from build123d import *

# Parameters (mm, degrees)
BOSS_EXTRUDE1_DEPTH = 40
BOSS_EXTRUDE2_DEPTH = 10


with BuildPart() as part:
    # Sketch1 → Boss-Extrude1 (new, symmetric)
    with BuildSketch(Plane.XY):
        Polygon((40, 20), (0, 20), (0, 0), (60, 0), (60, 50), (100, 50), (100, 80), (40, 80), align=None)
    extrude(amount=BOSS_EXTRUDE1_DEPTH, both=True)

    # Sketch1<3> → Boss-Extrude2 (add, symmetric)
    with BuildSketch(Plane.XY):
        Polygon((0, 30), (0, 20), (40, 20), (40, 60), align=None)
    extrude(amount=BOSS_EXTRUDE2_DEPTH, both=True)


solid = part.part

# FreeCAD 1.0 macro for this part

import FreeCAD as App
import Part
import Sketcher
from FreeCAD import Vector


def add_polygon(sketch, points):
    """Adds a closed chain of lines whose ends are joined by coincident constraints."""
    first, n = sketch.GeometryCount, len(points)
    for a, b in zip(points, points[1:] + points[:1]):
        sketch.addGeometry(Part.LineSegment(App.Vector(*a, 0), App.Vector(*b, 0)), False)
    for i in range(n):
        sketch.addConstraint(Sketcher.Constraint("Coincident", first + i, 2, first + (i + 1) % n, 1))

doc = App.newDocument("Part")
body = doc.addObject("PartDesign::Body", "Body")

sketch1 = body.newObject("Sketcher::SketchObject", "Sketch")
sketch1.AttachmentSupport = (doc.getObject("XY_Plane"), [""])
sketch1.MapMode = "FlatFace"
add_polygon(sketch1, [(40, 20), (0, 20), (0, 0), (60, 0), (60, 50), (100, 50), (100, 80), (40, 80)])
sketch1.addConstraint(Sketcher.Constraint("Horizontal", 0))
sketch1.addConstraint(Sketcher.Constraint("Vertical", 1))
sketch1.addConstraint(Sketcher.Constraint("Horizontal", 2))
sketch1.addConstraint(Sketcher.Constraint("Vertical", 3))
sketch1.addConstraint(Sketcher.Constraint("Horizontal", 4))
sketch1.addConstraint(Sketcher.Constraint("Vertical", 5))
sketch1.addConstraint(Sketcher.Constraint("Horizontal", 6))
sketch1.addConstraint(Sketcher.Constraint("Vertical", 7))
sketch1.addConstraint(Sketcher.Constraint("Coincident", 1, 2, -1, 1))
sketch1.addConstraint(Sketcher.Constraint("Equal", 0, 4))
sketch1.addConstraint(Sketcher.Constraint("Equal", 6, 7))
sketch1.addConstraint(Sketcher.Constraint("DistanceX", 0, 2, 0, 1, 40.0))
sketch1.addConstraint(Sketcher.Constraint("DistanceX", 2, 1, 2, 2, 60.0))
sketch1.addConstraint(Sketcher.Constraint("DistanceY", 1, 2, 1, 1, 20.0))
sketch1.addConstraint(Sketcher.Constraint("DistanceY", 3, 1, 3, 2, 50.0))
pad1 = body.newObject("PartDesign::Pad", "Pad")
pad1.Profile = sketch1
pad1.Length = 80
pad1.Midplane = True

sketch2 = body.newObject("Sketcher::SketchObject", "Sketch001")
sketch2.AttachmentSupport = (doc.getObject("XY_Plane"), [""])
sketch2.MapMode = "FlatFace"
add_polygon(sketch2, [(0, 30), (0, 20), (40, 20), (40, 60)])
sketch2.addConstraint(Sketcher.Constraint("Vertical", 0))
sketch2.addConstraint(Sketcher.Constraint("Horizontal", 1))
sketch2.addConstraint(Sketcher.Constraint("Vertical", 2))
sketch2.addConstraint(Sketcher.Constraint("PointOnObject", 0, 2, -2))
sketch2.addConstraint(Sketcher.Constraint("Equal", 1, 2))
sketch2.addConstraint(Sketcher.Constraint("DistanceX", 1, 1, 1, 2, 40.0))
sketch2.addConstraint(Sketcher.Constraint("DistanceY", 0, 2, 0, 1, 10.0))
sketch2.addConstraint(Sketcher.Constraint("DistanceY", -1, 1, 0, 2, 20.0))
pad2 = body.newObject("PartDesign::Pad", "Pad001")
pad2.Profile = sketch2
pad2.Length = 20
pad2.Midplane = True

doc.recompute()
